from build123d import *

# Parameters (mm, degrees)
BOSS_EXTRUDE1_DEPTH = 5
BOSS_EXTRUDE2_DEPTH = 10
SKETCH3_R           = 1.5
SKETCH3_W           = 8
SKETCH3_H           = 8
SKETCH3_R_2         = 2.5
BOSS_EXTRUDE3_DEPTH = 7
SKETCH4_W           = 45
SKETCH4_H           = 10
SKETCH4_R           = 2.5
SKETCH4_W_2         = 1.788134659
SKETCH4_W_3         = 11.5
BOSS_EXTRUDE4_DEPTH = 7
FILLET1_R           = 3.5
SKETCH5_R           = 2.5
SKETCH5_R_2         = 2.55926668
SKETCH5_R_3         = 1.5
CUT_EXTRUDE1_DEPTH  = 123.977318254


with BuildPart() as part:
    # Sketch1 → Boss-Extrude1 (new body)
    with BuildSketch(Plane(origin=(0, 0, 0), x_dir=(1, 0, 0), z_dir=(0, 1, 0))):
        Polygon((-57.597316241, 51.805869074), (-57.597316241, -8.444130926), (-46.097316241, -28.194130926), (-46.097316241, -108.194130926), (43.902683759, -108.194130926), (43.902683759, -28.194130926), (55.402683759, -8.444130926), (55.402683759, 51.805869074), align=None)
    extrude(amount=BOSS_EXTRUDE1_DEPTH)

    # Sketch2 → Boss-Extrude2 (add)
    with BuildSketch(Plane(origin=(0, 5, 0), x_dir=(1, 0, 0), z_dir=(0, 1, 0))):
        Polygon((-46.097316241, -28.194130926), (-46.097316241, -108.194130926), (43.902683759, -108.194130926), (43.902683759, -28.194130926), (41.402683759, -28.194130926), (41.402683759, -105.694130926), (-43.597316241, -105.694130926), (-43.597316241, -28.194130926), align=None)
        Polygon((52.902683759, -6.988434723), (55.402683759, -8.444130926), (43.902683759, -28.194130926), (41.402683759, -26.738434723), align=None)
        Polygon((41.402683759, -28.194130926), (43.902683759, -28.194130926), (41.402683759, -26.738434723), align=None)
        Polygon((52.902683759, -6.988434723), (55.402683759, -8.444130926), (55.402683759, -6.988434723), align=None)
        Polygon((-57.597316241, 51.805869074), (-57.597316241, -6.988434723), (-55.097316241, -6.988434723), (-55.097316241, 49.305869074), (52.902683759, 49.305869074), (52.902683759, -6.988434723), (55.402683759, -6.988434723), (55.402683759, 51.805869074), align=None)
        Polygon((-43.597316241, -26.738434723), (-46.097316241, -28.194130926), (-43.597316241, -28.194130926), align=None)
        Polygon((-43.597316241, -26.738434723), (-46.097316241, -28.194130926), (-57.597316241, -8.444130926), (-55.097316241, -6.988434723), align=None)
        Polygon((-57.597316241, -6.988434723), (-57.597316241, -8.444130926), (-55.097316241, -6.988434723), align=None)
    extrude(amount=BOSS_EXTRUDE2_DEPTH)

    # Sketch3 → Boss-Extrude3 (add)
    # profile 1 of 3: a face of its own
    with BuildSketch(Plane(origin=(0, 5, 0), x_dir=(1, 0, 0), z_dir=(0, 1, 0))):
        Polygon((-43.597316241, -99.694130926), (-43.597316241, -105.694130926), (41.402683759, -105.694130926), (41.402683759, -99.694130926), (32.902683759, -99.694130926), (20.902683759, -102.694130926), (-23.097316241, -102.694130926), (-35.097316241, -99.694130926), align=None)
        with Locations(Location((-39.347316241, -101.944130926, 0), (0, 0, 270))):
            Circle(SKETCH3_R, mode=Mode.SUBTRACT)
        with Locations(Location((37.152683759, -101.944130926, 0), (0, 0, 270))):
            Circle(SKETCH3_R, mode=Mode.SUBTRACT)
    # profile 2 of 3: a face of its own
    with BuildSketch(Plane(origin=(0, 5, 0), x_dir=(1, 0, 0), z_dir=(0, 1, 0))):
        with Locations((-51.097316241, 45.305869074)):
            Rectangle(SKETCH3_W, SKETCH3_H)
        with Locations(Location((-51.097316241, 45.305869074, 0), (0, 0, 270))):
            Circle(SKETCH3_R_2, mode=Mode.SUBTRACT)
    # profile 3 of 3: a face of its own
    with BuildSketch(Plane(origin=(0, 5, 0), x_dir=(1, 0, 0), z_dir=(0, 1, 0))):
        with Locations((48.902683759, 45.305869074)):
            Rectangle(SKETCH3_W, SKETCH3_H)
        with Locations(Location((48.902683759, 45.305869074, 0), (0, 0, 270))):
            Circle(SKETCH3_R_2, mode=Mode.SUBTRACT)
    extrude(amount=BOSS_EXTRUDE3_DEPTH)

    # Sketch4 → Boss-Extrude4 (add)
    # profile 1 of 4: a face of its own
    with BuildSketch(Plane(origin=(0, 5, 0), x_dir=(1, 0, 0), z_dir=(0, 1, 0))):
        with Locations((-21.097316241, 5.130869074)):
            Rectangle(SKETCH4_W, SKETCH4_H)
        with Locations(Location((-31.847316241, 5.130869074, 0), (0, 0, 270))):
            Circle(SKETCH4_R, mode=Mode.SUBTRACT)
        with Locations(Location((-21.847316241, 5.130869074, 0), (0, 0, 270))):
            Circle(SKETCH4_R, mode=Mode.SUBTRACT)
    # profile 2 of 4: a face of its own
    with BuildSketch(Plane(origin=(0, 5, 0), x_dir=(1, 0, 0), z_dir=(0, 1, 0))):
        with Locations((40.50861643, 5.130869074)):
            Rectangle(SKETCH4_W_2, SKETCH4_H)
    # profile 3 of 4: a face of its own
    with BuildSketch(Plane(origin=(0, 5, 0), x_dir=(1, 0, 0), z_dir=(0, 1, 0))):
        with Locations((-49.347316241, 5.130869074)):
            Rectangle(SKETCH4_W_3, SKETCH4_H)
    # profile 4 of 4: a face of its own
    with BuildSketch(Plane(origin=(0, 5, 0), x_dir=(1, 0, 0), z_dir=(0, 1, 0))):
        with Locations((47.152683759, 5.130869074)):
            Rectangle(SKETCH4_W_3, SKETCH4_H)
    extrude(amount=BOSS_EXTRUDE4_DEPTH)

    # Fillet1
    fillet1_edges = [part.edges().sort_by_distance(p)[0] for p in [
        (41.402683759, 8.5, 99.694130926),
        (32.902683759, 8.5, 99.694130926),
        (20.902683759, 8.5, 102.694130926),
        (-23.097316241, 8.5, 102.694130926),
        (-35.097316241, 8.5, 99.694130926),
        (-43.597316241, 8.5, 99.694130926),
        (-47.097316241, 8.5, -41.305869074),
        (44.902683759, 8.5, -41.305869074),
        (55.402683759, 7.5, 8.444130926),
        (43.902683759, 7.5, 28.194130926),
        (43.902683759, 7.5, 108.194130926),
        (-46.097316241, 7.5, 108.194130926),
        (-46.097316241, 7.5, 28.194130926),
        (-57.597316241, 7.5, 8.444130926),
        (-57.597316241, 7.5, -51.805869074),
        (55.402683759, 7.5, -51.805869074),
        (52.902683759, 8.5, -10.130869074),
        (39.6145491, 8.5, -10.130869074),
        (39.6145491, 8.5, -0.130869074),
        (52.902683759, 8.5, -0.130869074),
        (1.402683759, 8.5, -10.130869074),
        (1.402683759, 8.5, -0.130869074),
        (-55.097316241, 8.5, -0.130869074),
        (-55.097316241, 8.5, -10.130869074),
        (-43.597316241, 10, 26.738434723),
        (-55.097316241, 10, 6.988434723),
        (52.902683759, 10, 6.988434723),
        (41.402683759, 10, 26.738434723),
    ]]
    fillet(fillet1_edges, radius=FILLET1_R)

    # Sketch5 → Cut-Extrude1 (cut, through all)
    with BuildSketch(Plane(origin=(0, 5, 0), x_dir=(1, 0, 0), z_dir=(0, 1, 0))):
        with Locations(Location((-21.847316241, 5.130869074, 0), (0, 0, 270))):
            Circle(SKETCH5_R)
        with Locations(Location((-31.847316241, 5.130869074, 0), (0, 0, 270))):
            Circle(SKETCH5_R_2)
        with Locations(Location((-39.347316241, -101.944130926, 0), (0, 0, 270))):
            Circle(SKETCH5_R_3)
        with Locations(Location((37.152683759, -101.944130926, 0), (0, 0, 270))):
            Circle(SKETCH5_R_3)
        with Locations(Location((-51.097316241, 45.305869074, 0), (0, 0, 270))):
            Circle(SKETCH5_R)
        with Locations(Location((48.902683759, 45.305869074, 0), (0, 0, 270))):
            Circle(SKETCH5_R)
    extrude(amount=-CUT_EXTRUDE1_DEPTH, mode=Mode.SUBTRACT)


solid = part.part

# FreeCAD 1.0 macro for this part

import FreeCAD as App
import Part
import Sketcher
from FreeCAD import Vector
Q = App.Units.Quantity


def edges_at(feature, points):
    """Names of the edges that pass closest to the given points."""
    edges = feature.Shape.Edges
    near = lambda p: min(range(len(edges)), key=lambda i: edges[i].distToShape(Part.Vertex(*p))[0])
    return sorted({f"Edge{near(p) + 1}" for p in points})

doc = App.newDocument("Part")
body = doc.addObject("PartDesign::Body", "Body")

# Sketch on XZ plane
sketch1 = body.newObject("Sketcher::SketchObject", "Sketch")
sketch1.AttachmentSupport = (doc.getObject("XZ_Plane"), [""])
sketch1.MapMode = "FlatFace"
sketch1.addGeometry([
    Part.LineSegment(Vector(-57.597316, -51.805869, 0), Vector(-57.597316, 8.444131, 0)),  # 0
    Part.LineSegment(Vector(-57.597316, 8.444131, 0), Vector(-46.097316, 28.194131, 0)),  # 1
    Part.LineSegment(Vector(-46.097316, 28.194131, 0), Vector(-46.097316, 108.194131, 0)),  # 2
    Part.LineSegment(Vector(-46.097316, 108.194131, 0), Vector(43.902684, 108.194131, 0)),  # 3
    Part.LineSegment(Vector(43.902684, 108.194131, 0), Vector(43.902684, 28.194131, 0)),  # 4
    Part.LineSegment(Vector(43.902684, 28.194131, 0), Vector(55.402684, 8.444131, 0)),  # 5
    Part.LineSegment(Vector(55.402684, 8.444131, 0), Vector(55.402684, -51.805869, 0)),  # 6
    Part.LineSegment(Vector(55.402684, -51.805869, 0), Vector(-57.597316, -51.805869, 0)),  # 7
], False)
sketch1.addConstraint([
    Sketcher.Constraint("Coincident", 0, 2, 1, 1),
    Sketcher.Constraint("Coincident", 1, 2, 2, 1),
    Sketcher.Constraint("Coincident", 2, 2, 3, 1),
    Sketcher.Constraint("Coincident", 3, 2, 4, 1),
    Sketcher.Constraint("Coincident", 4, 2, 5, 1),
    Sketcher.Constraint("Coincident", 5, 2, 6, 1),
    Sketcher.Constraint("Coincident", 6, 2, 7, 1),
    Sketcher.Constraint("Coincident", 7, 2, 0, 1),
    Sketcher.Constraint("Vertical", 0),
    Sketcher.Constraint("Vertical", 2),
    Sketcher.Constraint("Horizontal", 3),
    Sketcher.Constraint("Vertical", 4),
    Sketcher.Constraint("Vertical", 6),
    Sketcher.Constraint("Horizontal", 7),
    Sketcher.Constraint("Horizontal", 1, 2, 4, 2),
    Sketcher.Constraint("Horizontal", 0, 2, 5, 2),
    Sketcher.Constraint("Equal", 1, 5),
    Sketcher.Constraint("DistanceX", 3, 1, 3, 2, Q("90 mm")),
    Sketcher.Constraint("DistanceX", 7, 2, 7, 1, Q("113 mm")),
    Sketcher.Constraint("DistanceY", 2, 1, 2, 2, Q("80 mm")),
    Sketcher.Constraint("DistanceY", 6, 2, 4, 2, Q("80 mm")),
    Sketcher.Constraint("DistanceY", 0, 1, 0, 2, Q("60.25 mm")),
    Sketcher.Constraint("DistanceY", -1, 1, 0, 2, Q("8.444131 mm")),
    Sketcher.Constraint("DistanceX", 0, 2, -1, 1, Q("57.597316 mm")),
])
pad1 = body.newObject("PartDesign::Pad", "Pad")
pad1.Profile = sketch1
pad1.Length = 5
pad1.Reversed = True

# Sketch on XZ plane
sketch2 = body.newObject("Sketcher::SketchObject", "Sketch001")
sketch2.AttachmentSupport = (doc.getObject("XZ_Plane"), [""])
sketch2.MapMode = "FlatFace"
sketch2.AttachmentOffset = App.Placement(Vector(0, 0, -5), App.Rotation())
sketch2.addGeometry([
    Part.LineSegment(Vector(-57.597316, -51.805869, 0), Vector(-57.597316, 8.444131, 0)),  # 0
    Part.LineSegment(Vector(-57.597316, 8.444131, 0), Vector(-46.097316, 28.194131, 0)),  # 1
    Part.LineSegment(Vector(-46.097316, 28.194131, 0), Vector(-46.097316, 108.194131, 0)),  # 2
    Part.LineSegment(Vector(-46.097316, 108.194131, 0), Vector(43.902684, 108.194131, 0)),  # 3
    Part.LineSegment(Vector(43.902684, 108.194131, 0), Vector(43.902684, 28.194131, 0)),  # 4
    Part.LineSegment(Vector(43.902684, 28.194131, 0), Vector(55.402684, 8.444131, 0)),  # 5
    Part.LineSegment(Vector(55.402684, 8.444131, 0), Vector(55.402684, -51.805869, 0)),  # 6
    Part.LineSegment(Vector(55.402684, -51.805869, 0), Vector(-57.597316, -51.805869, 0)),  # 7
    Part.LineSegment(Vector(-43.597316, 26.738435, 0), Vector(-55.097316, 6.988435, 0)),  # 8
    Part.LineSegment(Vector(-55.097316, 6.988435, 0), Vector(-55.097316, -49.305869, 0)),  # 9
    Part.LineSegment(Vector(-55.097316, -49.305869, 0), Vector(52.902684, -49.305869, 0)),  # 10
    Part.LineSegment(Vector(52.902684, -49.305869, 0), Vector(52.902684, 6.988435, 0)),  # 11
    Part.LineSegment(Vector(52.902684, 6.988435, 0), Vector(41.402684, 26.738435, 0)),  # 12
    Part.LineSegment(Vector(41.402684, 26.738435, 0), Vector(41.402684, 105.694131, 0)),  # 13
    Part.LineSegment(Vector(41.402684, 105.694131, 0), Vector(-43.597316, 105.694131, 0)),  # 14
    Part.LineSegment(Vector(-43.597316, 105.694131, 0), Vector(-43.597316, 26.738435, 0)),  # 15
], False)
sketch2.addConstraint([
    Sketcher.Constraint("Coincident", 0, 2, 1, 1),
    Sketcher.Constraint("Coincident", 1, 2, 2, 1),
    Sketcher.Constraint("Coincident", 2, 2, 3, 1),
    Sketcher.Constraint("Coincident", 3, 2, 4, 1),
    Sketcher.Constraint("Coincident", 4, 2, 5, 1),
    Sketcher.Constraint("Coincident", 5, 2, 6, 1),
    Sketcher.Constraint("Coincident", 6, 2, 7, 1),
    Sketcher.Constraint("Coincident", 7, 2, 0, 1),
    Sketcher.Constraint("Coincident", 8, 2, 9, 1),
    Sketcher.Constraint("Coincident", 9, 2, 10, 1),
    Sketcher.Constraint("Coincident", 10, 2, 11, 1),
    Sketcher.Constraint("Coincident", 11, 2, 12, 1),
    Sketcher.Constraint("Coincident", 12, 2, 13, 1),
    Sketcher.Constraint("Coincident", 13, 2, 14, 1),
    Sketcher.Constraint("Coincident", 14, 2, 15, 1),
    Sketcher.Constraint("Coincident", 15, 2, 8, 1),
    Sketcher.Constraint("Vertical", 0),
    Sketcher.Constraint("Vertical", 2),
    Sketcher.Constraint("Horizontal", 3),
    Sketcher.Constraint("Vertical", 4),
    Sketcher.Constraint("Vertical", 6),
    Sketcher.Constraint("Horizontal", 7),
    Sketcher.Constraint("Vertical", 9),
    Sketcher.Constraint("Horizontal", 10),
    Sketcher.Constraint("Vertical", 11),
    Sketcher.Constraint("Vertical", 13),
    Sketcher.Constraint("Horizontal", 14),
    Sketcher.Constraint("Vertical", 15),
    Sketcher.Constraint("Parallel", 1, 8),
    Sketcher.Constraint("Parallel", 5, 12),
    Sketcher.Constraint("Horizontal", 1, 2, 4, 2),
    Sketcher.Constraint("Horizontal", 0, 2, 5, 2),
    Sketcher.Constraint("Horizontal", 8, 2, 11, 2),
    Sketcher.Constraint("Horizontal", 12, 2, 15, 2),
    Sketcher.Constraint("Equal", 1, 5),
    Sketcher.Constraint("Equal", 5, 8),
    Sketcher.Constraint("DistanceX", 3, 1, 3, 2, Q("90 mm")),
    Sketcher.Constraint("DistanceX", 7, 2, 7, 1, Q("113 mm")),
    Sketcher.Constraint("DistanceX", 10, 1, 10, 2, Q("108 mm")),
    Sketcher.Constraint("DistanceY", 2, 1, 2, 2, Q("80 mm")),
    Sketcher.Constraint("DistanceY", 6, 2, 4, 2, Q("80 mm")),
    Sketcher.Constraint("DistanceX", 8, 2, 1, 2, Q("9 mm")),
    Sketcher.Constraint("DistanceY", 0, 1, 0, 2, Q("60.25 mm")),
    Sketcher.Constraint("DistanceY", 7, 2, 9, 2, Q("2.5 mm")),
    Sketcher.Constraint("DistanceY", 13, 2, 3, 2, Q("2.5 mm")),
    Sketcher.Constraint("DistanceY", 9, 2, 9, 1, Q("56.294304 mm")),
    Sketcher.Constraint("DistanceY", -1, 1, 0, 2, Q("8.444131 mm")),
    Sketcher.Constraint("DistanceX", 0, 2, -1, 1, Q("57.597316 mm")),
])
pad2 = body.newObject("PartDesign::Pad", "Pad001")
pad2.Profile = sketch2
pad2.Length = 10
pad2.Reversed = True

# Sketch on XZ plane
sketch3 = body.newObject("Sketcher::SketchObject", "Sketch002")
sketch3.AttachmentSupport = (doc.getObject("XZ_Plane"), [""])
sketch3.MapMode = "FlatFace"
sketch3.AttachmentOffset = App.Placement(Vector(0, 0, -5), App.Rotation())
sketch3.addGeometry([
    Part.LineSegment(Vector(-43.597316, 99.694131, 0), Vector(-43.597316, 105.694131, 0)),  # 0
    Part.LineSegment(Vector(-43.597316, 105.694131, 0), Vector(41.402684, 105.694131, 0)),  # 1
    Part.LineSegment(Vector(41.402684, 105.694131, 0), Vector(41.402684, 99.694131, 0)),  # 2
    Part.LineSegment(Vector(41.402684, 99.694131, 0), Vector(32.902684, 99.694131, 0)),  # 3
    Part.LineSegment(Vector(32.902684, 99.694131, 0), Vector(20.902684, 102.694131, 0)),  # 4
    Part.LineSegment(Vector(20.902684, 102.694131, 0), Vector(-23.097316, 102.694131, 0)),  # 5
    Part.LineSegment(Vector(-23.097316, 102.694131, 0), Vector(-35.097316, 99.694131, 0)),  # 6
    Part.LineSegment(Vector(-35.097316, 99.694131, 0), Vector(-43.597316, 99.694131, 0)),  # 7
    Part.Circle(Vector(-39.347316, 101.944131, 0), Vector(0, 0, 1), 1.5),  # 8
    Part.Circle(Vector(37.152684, 101.944131, 0), Vector(0, 0, 1), 1.5),  # 9
    Part.LineSegment(Vector(-55.097316, -49.305869, 0), Vector(-55.097316, -41.305869, 0)),  # 10
    Part.LineSegment(Vector(-55.097316, -41.305869, 0), Vector(-47.097316, -41.305869, 0)),  # 11
    Part.LineSegment(Vector(-47.097316, -41.305869, 0), Vector(-47.097316, -49.305869, 0)),  # 12
    Part.LineSegment(Vector(-47.097316, -49.305869, 0), Vector(-55.097316, -49.305869, 0)),  # 13
    Part.Circle(Vector(-51.097316, -45.305869, 0), Vector(0, 0, 1), 2.5),  # 14
    Part.LineSegment(Vector(44.902684, -49.305869, 0), Vector(44.902684, -41.305869, 0)),  # 15
    Part.LineSegment(Vector(44.902684, -41.305869, 0), Vector(52.902684, -41.305869, 0)),  # 16
    Part.LineSegment(Vector(52.902684, -41.305869, 0), Vector(52.902684, -49.305869, 0)),  # 17
    Part.LineSegment(Vector(52.902684, -49.305869, 0), Vector(44.902684, -49.305869, 0)),  # 18
    Part.Circle(Vector(48.902684, -45.305869, 0), Vector(0, 0, 1), 2.5),  # 19
], False)
sketch3.addConstraint([
    Sketcher.Constraint("Coincident", 0, 2, 1, 1),
    Sketcher.Constraint("Coincident", 1, 2, 2, 1),
    Sketcher.Constraint("Coincident", 2, 2, 3, 1),
    Sketcher.Constraint("Coincident", 3, 2, 4, 1),
    Sketcher.Constraint("Coincident", 4, 2, 5, 1),
    Sketcher.Constraint("Coincident", 5, 2, 6, 1),
    Sketcher.Constraint("Coincident", 6, 2, 7, 1),
    Sketcher.Constraint("Coincident", 7, 2, 0, 1),
    Sketcher.Constraint("Coincident", 10, 2, 11, 1),
    Sketcher.Constraint("Coincident", 11, 2, 12, 1),
    Sketcher.Constraint("Coincident", 12, 2, 13, 1),
    Sketcher.Constraint("Coincident", 13, 2, 10, 1),
    Sketcher.Constraint("Coincident", 15, 2, 16, 1),
    Sketcher.Constraint("Coincident", 16, 2, 17, 1),
    Sketcher.Constraint("Coincident", 17, 2, 18, 1),
    Sketcher.Constraint("Coincident", 18, 2, 15, 1),
    Sketcher.Constraint("Vertical", 0),
    Sketcher.Constraint("Horizontal", 1),
    Sketcher.Constraint("Vertical", 2),
    Sketcher.Constraint("Horizontal", 3),
    Sketcher.Constraint("Horizontal", 5),
    Sketcher.Constraint("Horizontal", 7),
    Sketcher.Constraint("Vertical", 10),
    Sketcher.Constraint("Horizontal", 11),
    Sketcher.Constraint("Vertical", 12),
    Sketcher.Constraint("Horizontal", 13),
    Sketcher.Constraint("Vertical", 15),
    Sketcher.Constraint("Horizontal", 16),
    Sketcher.Constraint("Vertical", 17),
    Sketcher.Constraint("Horizontal", 18),
    Sketcher.Constraint("Equal", 8, 9),
    Sketcher.Constraint("Equal", 14, 19),
    Sketcher.Constraint("Horizontal", 8, 3, 9, 3),
    Sketcher.Constraint("Horizontal", 14, 3, 19, 3),
    Sketcher.Constraint("Horizontal", 3, 2, 6, 2),
    Sketcher.Constraint("Horizontal", 11, 2, 15, 2),
    Sketcher.Constraint("Horizontal", 13, 2, 17, 2),
    Sketcher.Constraint("Equal", 3, 7),
    Sketcher.Constraint("Equal", 13, 16),
    Sketcher.Constraint("Equal", 18, 10),
    Sketcher.Constraint("Equal", 4, 6),
    Sketcher.Constraint("Diameter", 8, Q("3 mm")),
    Sketcher.Constraint("Diameter", 14, Q("5 mm")),
    Sketcher.Constraint("DistanceX", 1, 1, 1, 2, Q("85 mm")),
    Sketcher.Constraint("DistanceX", 5, 2, 5, 1, Q("44 mm")),
    Sketcher.Constraint("DistanceX", 11, 1, 11, 2, Q("8 mm")),
    Sketcher.Constraint("DistanceY", 0, 1, 0, 2, Q("6 mm")),
    Sketcher.Constraint("DistanceX", 3, 2, 3, 1, Q("8.5 mm")),
    Sketcher.Constraint("DistanceX", 14, 3, 19, 3, Q("100 mm")),
    Sketcher.Constraint("DistanceY", 14, 3, 0, 2, Q("151 mm")),
    Sketcher.Constraint("DistanceY", 3, 2, 4, 2, Q("3 mm")),
    Sketcher.Constraint("DistanceX", 10, 2, 14, 3, Q("4 mm")),
    Sketcher.Constraint("DistanceY", 14, 3, 10, 2, Q("4 mm")),
    Sketcher.Constraint("DistanceX", 10, 2, 6, 2, Q("20 mm")),
    Sketcher.Constraint("DistanceX", 15, 2, 19, 3, Q("4 mm")),
    Sketcher.Constraint("DistanceX", 8, 3, 9, 3, Q("76.5 mm")),
    Sketcher.Constraint("DistanceX", 14, 3, 8, 3, Q("11.75 mm")),
    Sketcher.Constraint("DistanceY", 14, 3, 8, 3, Q("147.25 mm")),
    Sketcher.Constraint("DistanceY", -1, 1, 8, 3, Q("101.944131 mm")),
    Sketcher.Constraint("DistanceX", 8, 3, -1, 1, Q("39.347316 mm")),
])
pad3 = body.newObject("PartDesign::Pad", "Pad002")
pad3.Profile = sketch3
pad3.Length = 7
pad3.Reversed = True

# Sketch on XZ plane
sketch4 = body.newObject("Sketcher::SketchObject", "Sketch003")
sketch4.AttachmentSupport = (doc.getObject("XZ_Plane"), [""])
sketch4.MapMode = "FlatFace"
sketch4.AttachmentOffset = App.Placement(Vector(0, 0, -5), App.Rotation())
sketch4.addGeometry([
    Part.LineSegment(Vector(1.402684, -0.130869, 0), Vector(1.402684, -10.130869, 0)),  # 0
    Part.LineSegment(Vector(1.402684, -10.130869, 0), Vector(-55.097316, -10.130869, 0)),  # 1
    Part.LineSegment(Vector(-55.097316, -10.130869, 0), Vector(-55.097316, -0.130869, 0)),  # 2
    Part.LineSegment(Vector(-55.097316, -0.130869, 0), Vector(1.402684, -0.130869, 0)),  # 3
    Part.Circle(Vector(-31.847316, -5.130869, 0), Vector(0, 0, 1), 2.5),  # 4
    Part.Circle(Vector(-21.847316, -5.130869, 0), Vector(0, 0, 1), 2.5),  # 5
    Part.LineSegment(Vector(39.614549, -10.130869, 0), Vector(39.614549, -0.130869, 0)),  # 6
    Part.LineSegment(Vector(39.614549, -0.130869, 0), Vector(52.902684, -0.130869, 0)),  # 7
    Part.LineSegment(Vector(52.902684, -0.130869, 0), Vector(52.902684, -10.130869, 0)),  # 8
    Part.LineSegment(Vector(52.902684, -10.130869, 0), Vector(39.614549, -10.130869, 0)),  # 9
], False)
sketch4.addConstraint([
    Sketcher.Constraint("Coincident", 0, 2, 1, 1),
    Sketcher.Constraint("Coincident", 1, 2, 2, 1),
    Sketcher.Constraint("Coincident", 2, 2, 3, 1),
    Sketcher.Constraint("Coincident", 3, 2, 0, 1),
    Sketcher.Constraint("Coincident", 6, 2, 7, 1),
    Sketcher.Constraint("Coincident", 7, 2, 8, 1),
    Sketcher.Constraint("Coincident", 8, 2, 9, 1),
    Sketcher.Constraint("Coincident", 9, 2, 6, 1),
    Sketcher.Constraint("Vertical", 0),
    Sketcher.Constraint("Horizontal", 1),
    Sketcher.Constraint("Vertical", 2),
    Sketcher.Constraint("Horizontal", 3),
    Sketcher.Constraint("Vertical", 6),
    Sketcher.Constraint("Horizontal", 7),
    Sketcher.Constraint("Vertical", 8),
    Sketcher.Constraint("Horizontal", 9),
    Sketcher.Constraint("Equal", 4, 5),
    Sketcher.Constraint("Horizontal", 4, 3, 5, 3),
    Sketcher.Constraint("Horizontal", 3, 2, 6, 2),
    Sketcher.Constraint("Horizontal", 1, 2, 8, 2),
    Sketcher.Constraint("Diameter", 4, Q("5 mm")),
    Sketcher.Constraint("DistanceY", 0, 2, 0, 1, Q("10 mm")),
    Sketcher.Constraint("DistanceX", 1, 2, 1, 1, Q("56.5 mm")),
    Sketcher.Constraint("DistanceX", 4, 3, 5, 3, Q("10 mm")),
    Sketcher.Constraint("DistanceY", 0, 2, 5, 3, Q("5 mm")),
    Sketcher.Constraint("DistanceX", 3, 2, 7, 2, Q("51.5 mm")),
    Sketcher.Constraint("DistanceX", 5, 3, 0, 2, Q("23.25 mm")),
    Sketcher.Constraint("DistanceX", 7, 1, 7, 2, Q("13.288135 mm")),
    Sketcher.Constraint("DistanceY", 4, 3, -1, 1, Q("5.130869 mm")),
    Sketcher.Constraint("DistanceX", -1, 1, 6, 2, Q("39.614549 mm")),
])
pad4 = body.newObject("PartDesign::Pad", "Pad003")
pad4.Profile = sketch4
pad4.Length = 7
pad4.Reversed = True
doc.recompute()

fillet = body.newObject("PartDesign::Fillet", "Fillet")
fillet.Base = (pad4, edges_at(pad4, [
    (41.403, 8.5, 99.694),
    (32.903, 8.5, 99.694),
    (20.903, 8.5, 102.694),
    (-23.097, 8.5, 102.694),
    (-35.097, 8.5, 99.694),
    (-43.597, 8.5, 99.694),
    (-47.097, 8.5, -41.306),
    (44.903, 8.5, -41.306),
    (55.403, 7.5, 8.444),
    (43.903, 7.5, 28.194),
    (43.903, 7.5, 108.194),
    (-46.097, 7.5, 108.194),
    (-46.097, 7.5, 28.194),
    (-57.597, 7.5, 8.444),
    (-57.597, 7.5, -51.806),
    (55.403, 7.5, -51.806),
    (52.903, 8.5, -10.131),
    (39.615, 8.5, -10.131),
    (39.615, 8.5, -0.131),
    (52.903, 8.5, -0.131),
    (1.403, 8.5, -10.131),
    (1.403, 8.5, -0.131),
    (-55.097, 8.5, -0.131),
    (-55.097, 8.5, -10.131),
    (-43.597, 10, 26.738),
    (-55.097, 10, 6.988),
    (52.903, 10, 6.988),
    (41.403, 10, 26.738),
]))
fillet.Radius = 3.5

# Sketch on XZ plane
sketch5 = body.newObject("Sketcher::SketchObject", "Sketch004")
sketch5.AttachmentSupport = (doc.getObject("XZ_Plane"), [""])
sketch5.MapMode = "FlatFace"
sketch5.AttachmentOffset = App.Placement(Vector(0, 0, -5), App.Rotation())
sketch5.addGeometry([
    Part.Circle(Vector(-21.847316, -5.130869, 0), Vector(0, 0, 1), 2.5),  # 0
    Part.Circle(Vector(-31.847316, -5.130869, 0), Vector(0, 0, 1), 2.559267),  # 1
    Part.Circle(Vector(-39.347316, 101.944131, 0), Vector(0, 0, 1), 1.5),  # 2
    Part.Circle(Vector(37.152684, 101.944131, 0), Vector(0, 0, 1), 1.5),  # 3
    Part.Circle(Vector(-51.097316, -45.305869, 0), Vector(0, 0, 1), 2.5),  # 4
    Part.Circle(Vector(48.902684, -45.305869, 0), Vector(0, 0, 1), 2.5),  # 5
], False)
sketch5.addConstraint([
    Sketcher.Constraint("Equal", 2, 3),
    Sketcher.Constraint("Equal", 0, 4),
    Sketcher.Constraint("Equal", 4, 5),
    Sketcher.Constraint("Horizontal", 0, 3, 1, 3),
    Sketcher.Constraint("Horizontal", 2, 3, 3, 3),
    Sketcher.Constraint("Horizontal", 4, 3, 5, 3),
    Sketcher.Constraint("Diameter", 0, Q("5 mm")),
    Sketcher.Constraint("Diameter", 2, Q("3 mm")),
    Sketcher.Constraint("DistanceX", 1, 3, 0, 3, Q("10 mm")),
    Sketcher.Constraint("DistanceX", 0, 3, 3, 3, Q("59 mm")),
    Sketcher.Constraint("DistanceX", 4, 3, 5, 3, Q("100 mm")),
    Sketcher.Constraint("DistanceX", 2, 3, 1, 3, Q("7.5 mm")),
    Sketcher.Constraint("DistanceX", 4, 3, 1, 3, Q("19.25 mm")),
    Sketcher.Constraint("DistanceY", 4, 3, 2, 3, Q("147.25 mm")),
    Sketcher.Constraint("Diameter", 1, Q("5.118533 mm")),
    Sketcher.Constraint("DistanceY", 1, 3, 2, 3, Q("107.075 mm")),
    Sketcher.Constraint("DistanceY", 0, 3, -1, 1, Q("5.130869 mm")),
    Sketcher.Constraint("DistanceX", 0, 3, -1, 1, Q("21.847316 mm")),
])
pocket1 = body.newObject("PartDesign::Pocket", "Pocket")
pocket1.Profile = sketch5
pocket1.Type = "ThroughAll"
pocket1.Reversed = True

doc.recompute()
